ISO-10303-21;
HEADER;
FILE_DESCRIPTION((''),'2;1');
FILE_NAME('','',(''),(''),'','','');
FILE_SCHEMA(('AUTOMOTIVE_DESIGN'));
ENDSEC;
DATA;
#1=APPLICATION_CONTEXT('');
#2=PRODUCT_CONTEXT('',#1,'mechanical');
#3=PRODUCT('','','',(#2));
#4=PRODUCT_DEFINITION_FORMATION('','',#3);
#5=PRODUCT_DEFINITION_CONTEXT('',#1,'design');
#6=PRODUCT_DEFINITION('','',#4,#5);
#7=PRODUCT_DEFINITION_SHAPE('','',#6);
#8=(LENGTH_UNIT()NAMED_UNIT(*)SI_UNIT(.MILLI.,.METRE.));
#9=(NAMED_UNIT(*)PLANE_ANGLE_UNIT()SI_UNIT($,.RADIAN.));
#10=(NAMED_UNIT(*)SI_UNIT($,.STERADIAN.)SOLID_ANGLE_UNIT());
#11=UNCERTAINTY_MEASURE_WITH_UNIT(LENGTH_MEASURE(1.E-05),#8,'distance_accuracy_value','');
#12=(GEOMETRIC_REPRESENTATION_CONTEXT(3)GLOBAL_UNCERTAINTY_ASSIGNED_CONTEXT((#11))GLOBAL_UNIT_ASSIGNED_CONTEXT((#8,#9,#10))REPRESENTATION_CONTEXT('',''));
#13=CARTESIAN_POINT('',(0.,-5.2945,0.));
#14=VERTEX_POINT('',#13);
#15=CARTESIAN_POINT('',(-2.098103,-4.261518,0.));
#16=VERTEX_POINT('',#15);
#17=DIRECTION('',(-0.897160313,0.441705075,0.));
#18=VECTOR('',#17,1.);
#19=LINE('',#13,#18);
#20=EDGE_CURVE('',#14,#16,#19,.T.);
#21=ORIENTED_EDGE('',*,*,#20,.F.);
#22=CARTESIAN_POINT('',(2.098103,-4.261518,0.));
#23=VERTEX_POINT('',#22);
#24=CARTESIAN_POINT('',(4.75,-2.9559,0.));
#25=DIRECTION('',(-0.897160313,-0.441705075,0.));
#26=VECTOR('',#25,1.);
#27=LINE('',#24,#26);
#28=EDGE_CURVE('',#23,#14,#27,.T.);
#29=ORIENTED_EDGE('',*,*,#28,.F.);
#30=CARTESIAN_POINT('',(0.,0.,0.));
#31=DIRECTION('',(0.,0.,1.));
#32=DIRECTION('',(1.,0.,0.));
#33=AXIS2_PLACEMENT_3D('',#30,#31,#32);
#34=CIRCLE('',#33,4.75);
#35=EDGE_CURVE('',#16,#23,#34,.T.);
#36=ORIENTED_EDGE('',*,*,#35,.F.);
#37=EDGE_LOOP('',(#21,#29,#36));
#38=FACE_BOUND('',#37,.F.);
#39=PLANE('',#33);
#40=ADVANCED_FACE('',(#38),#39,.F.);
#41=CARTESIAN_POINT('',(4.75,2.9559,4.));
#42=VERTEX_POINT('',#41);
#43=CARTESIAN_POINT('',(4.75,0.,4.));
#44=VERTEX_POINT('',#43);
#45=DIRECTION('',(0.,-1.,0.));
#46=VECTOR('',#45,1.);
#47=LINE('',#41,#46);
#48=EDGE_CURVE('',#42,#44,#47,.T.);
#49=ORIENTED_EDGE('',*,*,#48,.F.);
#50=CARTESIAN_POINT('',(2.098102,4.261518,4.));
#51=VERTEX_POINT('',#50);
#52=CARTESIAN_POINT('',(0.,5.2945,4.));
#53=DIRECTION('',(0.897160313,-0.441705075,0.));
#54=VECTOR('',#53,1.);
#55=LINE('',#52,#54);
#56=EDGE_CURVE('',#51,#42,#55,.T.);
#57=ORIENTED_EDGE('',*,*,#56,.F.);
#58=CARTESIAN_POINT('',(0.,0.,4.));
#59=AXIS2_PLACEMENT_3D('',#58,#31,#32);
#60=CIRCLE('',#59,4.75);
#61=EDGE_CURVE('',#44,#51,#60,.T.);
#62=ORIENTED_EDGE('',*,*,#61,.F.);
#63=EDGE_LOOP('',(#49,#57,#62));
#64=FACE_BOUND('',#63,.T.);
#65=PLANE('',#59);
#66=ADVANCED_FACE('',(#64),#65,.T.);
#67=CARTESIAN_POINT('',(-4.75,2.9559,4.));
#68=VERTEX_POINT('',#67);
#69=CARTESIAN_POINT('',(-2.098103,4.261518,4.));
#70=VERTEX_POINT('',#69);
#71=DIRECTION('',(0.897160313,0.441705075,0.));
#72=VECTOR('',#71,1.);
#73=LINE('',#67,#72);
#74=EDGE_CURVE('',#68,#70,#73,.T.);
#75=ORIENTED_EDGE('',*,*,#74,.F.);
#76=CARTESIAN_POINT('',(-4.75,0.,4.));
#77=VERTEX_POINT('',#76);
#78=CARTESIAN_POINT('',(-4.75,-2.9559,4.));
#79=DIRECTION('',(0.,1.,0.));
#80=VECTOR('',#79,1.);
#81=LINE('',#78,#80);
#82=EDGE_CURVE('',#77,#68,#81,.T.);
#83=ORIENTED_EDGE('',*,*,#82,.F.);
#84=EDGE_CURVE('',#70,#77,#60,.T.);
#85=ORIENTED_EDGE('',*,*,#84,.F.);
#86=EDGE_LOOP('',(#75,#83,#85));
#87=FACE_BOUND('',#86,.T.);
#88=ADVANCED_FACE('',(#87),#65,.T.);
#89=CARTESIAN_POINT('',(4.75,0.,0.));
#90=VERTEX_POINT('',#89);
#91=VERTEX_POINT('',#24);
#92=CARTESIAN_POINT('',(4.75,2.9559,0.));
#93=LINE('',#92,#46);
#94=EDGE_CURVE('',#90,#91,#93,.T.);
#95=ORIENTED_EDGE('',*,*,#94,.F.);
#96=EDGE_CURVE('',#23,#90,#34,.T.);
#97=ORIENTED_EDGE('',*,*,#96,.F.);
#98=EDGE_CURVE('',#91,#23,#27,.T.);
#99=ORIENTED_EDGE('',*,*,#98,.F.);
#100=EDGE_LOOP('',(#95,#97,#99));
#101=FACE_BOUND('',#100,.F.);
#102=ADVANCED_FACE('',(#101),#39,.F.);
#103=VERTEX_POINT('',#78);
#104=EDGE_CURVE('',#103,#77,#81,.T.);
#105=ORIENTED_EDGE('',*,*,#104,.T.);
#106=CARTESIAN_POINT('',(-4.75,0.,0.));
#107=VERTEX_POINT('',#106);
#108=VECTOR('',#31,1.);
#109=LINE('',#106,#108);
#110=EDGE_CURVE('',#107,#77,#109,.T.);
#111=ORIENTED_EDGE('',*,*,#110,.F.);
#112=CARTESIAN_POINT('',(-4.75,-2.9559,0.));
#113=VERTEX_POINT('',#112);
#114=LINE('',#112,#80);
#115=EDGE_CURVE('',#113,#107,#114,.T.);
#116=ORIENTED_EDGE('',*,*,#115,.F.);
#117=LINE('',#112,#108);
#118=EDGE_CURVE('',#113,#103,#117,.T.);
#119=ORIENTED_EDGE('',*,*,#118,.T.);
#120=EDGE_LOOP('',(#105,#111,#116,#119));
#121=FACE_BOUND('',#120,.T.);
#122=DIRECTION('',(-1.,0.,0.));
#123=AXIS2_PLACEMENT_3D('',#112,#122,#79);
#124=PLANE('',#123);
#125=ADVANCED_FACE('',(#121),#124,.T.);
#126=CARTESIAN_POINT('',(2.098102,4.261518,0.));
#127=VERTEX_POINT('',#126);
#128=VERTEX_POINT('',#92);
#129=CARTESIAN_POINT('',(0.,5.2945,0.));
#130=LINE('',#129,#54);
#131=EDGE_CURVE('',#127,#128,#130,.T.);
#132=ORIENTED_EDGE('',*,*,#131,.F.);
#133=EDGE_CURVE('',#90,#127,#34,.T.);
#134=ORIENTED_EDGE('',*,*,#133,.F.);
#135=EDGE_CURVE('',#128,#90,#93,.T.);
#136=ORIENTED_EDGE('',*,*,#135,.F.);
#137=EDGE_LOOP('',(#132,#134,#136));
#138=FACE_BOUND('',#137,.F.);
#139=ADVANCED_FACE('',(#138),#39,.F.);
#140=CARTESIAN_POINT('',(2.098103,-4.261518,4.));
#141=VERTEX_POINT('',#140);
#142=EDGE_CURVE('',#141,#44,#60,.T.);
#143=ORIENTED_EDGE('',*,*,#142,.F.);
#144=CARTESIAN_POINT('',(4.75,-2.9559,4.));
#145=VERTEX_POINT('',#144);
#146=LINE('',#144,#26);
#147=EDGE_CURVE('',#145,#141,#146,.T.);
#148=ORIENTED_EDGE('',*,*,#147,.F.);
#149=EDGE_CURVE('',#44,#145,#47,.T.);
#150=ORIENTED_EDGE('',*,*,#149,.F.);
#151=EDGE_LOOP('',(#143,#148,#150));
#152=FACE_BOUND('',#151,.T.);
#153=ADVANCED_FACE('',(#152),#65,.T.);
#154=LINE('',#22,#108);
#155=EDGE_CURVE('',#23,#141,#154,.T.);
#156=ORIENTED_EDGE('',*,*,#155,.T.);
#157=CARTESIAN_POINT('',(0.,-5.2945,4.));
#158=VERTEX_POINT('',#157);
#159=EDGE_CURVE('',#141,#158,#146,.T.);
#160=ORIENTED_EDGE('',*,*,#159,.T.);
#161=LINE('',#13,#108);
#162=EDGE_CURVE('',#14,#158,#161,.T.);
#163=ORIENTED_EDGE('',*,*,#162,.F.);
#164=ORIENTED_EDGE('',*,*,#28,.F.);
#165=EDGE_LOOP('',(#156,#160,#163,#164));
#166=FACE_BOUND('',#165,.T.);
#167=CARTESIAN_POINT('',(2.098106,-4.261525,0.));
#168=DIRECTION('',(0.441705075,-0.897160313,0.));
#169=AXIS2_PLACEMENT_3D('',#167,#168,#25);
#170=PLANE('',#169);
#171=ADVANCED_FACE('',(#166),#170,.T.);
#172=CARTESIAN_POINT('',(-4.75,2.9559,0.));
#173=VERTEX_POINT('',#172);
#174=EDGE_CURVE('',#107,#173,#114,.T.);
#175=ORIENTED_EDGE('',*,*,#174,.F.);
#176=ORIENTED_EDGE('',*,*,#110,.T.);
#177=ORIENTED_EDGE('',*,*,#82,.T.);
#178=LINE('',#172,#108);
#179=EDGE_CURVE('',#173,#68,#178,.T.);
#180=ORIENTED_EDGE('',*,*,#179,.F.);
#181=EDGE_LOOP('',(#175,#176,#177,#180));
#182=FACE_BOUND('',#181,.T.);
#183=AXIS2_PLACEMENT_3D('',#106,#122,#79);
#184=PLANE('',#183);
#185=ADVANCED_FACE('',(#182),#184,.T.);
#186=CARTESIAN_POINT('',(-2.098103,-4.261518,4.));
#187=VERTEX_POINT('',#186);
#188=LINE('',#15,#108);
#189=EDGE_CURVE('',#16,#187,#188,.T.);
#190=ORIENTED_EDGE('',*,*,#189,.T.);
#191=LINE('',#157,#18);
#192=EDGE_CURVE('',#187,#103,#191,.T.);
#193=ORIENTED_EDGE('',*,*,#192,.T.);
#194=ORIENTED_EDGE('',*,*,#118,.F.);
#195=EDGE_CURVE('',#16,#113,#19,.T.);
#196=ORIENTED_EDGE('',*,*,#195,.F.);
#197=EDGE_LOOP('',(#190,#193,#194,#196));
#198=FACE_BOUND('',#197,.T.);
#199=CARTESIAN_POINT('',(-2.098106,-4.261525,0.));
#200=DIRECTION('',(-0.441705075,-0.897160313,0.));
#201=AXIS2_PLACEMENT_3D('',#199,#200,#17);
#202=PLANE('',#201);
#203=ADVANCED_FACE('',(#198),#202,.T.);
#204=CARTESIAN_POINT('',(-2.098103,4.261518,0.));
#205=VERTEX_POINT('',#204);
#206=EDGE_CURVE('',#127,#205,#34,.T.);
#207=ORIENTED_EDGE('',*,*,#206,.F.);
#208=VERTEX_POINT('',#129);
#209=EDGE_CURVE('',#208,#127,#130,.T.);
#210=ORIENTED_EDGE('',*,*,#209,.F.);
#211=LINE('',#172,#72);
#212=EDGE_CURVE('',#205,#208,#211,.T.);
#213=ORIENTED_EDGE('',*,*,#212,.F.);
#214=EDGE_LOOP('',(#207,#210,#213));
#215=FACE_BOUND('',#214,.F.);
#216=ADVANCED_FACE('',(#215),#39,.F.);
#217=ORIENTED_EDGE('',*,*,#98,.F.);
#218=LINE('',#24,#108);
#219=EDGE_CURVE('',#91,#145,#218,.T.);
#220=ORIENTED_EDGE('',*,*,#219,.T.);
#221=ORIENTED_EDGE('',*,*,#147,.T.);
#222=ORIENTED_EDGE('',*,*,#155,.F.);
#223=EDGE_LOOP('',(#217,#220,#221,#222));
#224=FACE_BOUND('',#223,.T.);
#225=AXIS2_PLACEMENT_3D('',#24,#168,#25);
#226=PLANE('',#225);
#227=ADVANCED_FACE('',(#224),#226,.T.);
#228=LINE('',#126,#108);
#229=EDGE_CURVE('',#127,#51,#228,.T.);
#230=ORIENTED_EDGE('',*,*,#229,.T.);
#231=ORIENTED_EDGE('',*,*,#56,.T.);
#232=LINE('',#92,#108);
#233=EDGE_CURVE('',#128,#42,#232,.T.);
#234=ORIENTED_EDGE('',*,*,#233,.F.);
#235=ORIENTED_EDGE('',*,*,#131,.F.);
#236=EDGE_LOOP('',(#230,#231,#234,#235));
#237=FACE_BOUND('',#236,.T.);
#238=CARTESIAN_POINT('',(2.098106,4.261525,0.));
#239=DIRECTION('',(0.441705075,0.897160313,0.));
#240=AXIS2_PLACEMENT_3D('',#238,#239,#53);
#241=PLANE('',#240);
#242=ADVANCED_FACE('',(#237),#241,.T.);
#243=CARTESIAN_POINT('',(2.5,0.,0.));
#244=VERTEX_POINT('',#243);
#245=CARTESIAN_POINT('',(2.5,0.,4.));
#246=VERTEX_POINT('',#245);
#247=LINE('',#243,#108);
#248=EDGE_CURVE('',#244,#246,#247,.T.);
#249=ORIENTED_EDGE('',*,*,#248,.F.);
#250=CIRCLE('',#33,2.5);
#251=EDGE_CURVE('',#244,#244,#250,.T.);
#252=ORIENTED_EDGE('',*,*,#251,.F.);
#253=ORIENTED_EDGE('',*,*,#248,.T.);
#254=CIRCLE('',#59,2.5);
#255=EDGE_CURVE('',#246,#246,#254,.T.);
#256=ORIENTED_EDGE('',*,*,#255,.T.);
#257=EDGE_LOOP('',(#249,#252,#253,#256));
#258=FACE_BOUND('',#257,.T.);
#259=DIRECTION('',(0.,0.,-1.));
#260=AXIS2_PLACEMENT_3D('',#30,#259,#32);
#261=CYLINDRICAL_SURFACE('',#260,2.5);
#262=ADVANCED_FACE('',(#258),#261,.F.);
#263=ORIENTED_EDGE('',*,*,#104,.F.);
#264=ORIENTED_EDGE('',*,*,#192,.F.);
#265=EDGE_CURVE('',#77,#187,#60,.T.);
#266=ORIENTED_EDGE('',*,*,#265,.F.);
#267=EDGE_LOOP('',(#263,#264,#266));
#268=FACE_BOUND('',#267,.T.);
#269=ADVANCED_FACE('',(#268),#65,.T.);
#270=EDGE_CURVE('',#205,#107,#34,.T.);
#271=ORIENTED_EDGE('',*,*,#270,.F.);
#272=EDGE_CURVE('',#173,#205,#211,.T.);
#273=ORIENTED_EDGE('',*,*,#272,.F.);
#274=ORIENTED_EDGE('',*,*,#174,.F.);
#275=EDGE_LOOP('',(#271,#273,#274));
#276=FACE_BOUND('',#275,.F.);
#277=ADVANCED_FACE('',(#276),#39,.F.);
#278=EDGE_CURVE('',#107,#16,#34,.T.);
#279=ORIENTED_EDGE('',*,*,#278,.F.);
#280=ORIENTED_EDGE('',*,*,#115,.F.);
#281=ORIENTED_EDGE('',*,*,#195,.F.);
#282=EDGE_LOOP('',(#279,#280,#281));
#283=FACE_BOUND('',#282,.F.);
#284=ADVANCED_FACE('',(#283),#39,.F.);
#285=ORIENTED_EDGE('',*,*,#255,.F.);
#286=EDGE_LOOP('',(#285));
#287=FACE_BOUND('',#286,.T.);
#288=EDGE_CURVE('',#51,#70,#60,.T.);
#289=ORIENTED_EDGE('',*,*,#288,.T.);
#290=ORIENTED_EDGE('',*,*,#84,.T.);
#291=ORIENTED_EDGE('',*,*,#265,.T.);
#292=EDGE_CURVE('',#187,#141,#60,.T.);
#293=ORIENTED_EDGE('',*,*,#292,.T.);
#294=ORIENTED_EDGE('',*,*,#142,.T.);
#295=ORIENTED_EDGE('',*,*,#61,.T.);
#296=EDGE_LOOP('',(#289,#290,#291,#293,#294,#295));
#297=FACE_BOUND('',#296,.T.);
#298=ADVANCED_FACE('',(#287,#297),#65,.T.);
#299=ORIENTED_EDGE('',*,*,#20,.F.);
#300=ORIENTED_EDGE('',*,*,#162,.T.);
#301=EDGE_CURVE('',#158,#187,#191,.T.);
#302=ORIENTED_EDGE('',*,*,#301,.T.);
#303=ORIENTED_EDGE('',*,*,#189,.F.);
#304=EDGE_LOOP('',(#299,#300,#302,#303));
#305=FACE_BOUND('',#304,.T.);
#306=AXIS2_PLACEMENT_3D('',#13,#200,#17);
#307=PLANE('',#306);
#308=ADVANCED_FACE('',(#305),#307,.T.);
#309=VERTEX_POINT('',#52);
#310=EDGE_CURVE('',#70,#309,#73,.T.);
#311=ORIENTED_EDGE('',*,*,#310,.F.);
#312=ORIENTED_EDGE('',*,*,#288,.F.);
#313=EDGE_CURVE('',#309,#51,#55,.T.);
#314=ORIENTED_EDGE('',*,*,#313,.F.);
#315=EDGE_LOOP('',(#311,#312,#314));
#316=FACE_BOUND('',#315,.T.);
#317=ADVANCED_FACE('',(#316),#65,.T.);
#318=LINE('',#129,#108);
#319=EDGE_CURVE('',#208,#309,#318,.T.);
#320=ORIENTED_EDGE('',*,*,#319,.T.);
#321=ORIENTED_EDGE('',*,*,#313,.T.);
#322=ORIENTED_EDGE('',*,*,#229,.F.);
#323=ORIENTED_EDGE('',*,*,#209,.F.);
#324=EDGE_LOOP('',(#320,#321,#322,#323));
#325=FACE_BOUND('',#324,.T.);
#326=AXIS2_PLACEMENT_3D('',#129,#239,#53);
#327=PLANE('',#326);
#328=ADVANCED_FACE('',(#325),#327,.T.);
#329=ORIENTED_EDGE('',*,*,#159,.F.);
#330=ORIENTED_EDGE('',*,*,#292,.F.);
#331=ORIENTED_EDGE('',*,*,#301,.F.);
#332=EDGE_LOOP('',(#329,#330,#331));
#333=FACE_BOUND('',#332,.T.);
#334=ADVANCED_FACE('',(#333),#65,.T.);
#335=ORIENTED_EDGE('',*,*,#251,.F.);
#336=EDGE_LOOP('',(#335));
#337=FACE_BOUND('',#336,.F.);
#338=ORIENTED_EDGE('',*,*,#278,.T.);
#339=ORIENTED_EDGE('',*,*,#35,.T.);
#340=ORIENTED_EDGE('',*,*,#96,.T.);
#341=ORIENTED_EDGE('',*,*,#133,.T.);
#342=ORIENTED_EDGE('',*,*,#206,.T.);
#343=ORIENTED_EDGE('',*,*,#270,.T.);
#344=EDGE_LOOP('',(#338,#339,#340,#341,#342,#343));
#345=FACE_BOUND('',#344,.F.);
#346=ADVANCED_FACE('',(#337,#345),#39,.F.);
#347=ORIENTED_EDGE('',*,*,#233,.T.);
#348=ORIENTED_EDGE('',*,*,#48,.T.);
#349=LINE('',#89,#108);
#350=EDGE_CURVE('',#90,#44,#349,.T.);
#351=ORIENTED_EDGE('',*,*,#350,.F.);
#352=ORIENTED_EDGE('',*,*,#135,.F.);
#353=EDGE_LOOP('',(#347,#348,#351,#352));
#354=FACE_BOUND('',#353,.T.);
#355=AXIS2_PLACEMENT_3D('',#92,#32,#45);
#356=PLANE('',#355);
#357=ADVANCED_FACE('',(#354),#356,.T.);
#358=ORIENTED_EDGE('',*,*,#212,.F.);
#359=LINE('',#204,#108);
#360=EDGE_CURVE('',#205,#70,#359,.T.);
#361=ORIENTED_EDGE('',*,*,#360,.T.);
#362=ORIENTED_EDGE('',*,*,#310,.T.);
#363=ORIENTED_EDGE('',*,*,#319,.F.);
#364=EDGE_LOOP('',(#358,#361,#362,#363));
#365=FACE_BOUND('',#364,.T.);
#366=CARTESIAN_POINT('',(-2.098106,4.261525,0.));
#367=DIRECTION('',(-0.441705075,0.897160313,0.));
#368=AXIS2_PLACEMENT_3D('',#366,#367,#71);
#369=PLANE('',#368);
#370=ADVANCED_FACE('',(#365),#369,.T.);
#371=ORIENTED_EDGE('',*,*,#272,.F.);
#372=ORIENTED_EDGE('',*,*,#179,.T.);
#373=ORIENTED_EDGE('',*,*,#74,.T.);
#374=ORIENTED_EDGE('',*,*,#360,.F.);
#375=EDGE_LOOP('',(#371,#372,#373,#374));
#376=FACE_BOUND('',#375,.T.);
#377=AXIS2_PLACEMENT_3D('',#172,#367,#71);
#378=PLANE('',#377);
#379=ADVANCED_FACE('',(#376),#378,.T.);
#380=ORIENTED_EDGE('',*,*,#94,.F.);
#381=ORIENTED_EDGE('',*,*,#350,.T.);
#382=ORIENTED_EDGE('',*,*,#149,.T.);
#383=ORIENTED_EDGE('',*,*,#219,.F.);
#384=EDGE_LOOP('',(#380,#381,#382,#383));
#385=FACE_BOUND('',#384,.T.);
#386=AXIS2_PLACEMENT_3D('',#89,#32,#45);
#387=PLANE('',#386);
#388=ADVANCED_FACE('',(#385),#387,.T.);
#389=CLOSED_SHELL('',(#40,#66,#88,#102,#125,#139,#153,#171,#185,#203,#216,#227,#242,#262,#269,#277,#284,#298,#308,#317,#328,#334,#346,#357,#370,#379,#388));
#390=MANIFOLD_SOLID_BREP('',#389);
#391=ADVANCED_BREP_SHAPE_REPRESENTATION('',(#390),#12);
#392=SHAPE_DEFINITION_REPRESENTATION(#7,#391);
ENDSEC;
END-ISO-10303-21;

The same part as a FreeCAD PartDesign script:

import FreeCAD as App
import Part
import Sketcher
from FreeCAD import Vector


def add_polygon(sketch, points):
    """Adds a closed chain of lines whose ends are joined by coincident constraints."""
    first, n = sketch.GeometryCount, len(points)
    for a, b in zip(points, points[1:] + points[:1]):
        sketch.addGeometry(Part.LineSegment(App.Vector(*a, 0), App.Vector(*b, 0)), False)
    for i in range(n):
        sketch.addConstraint(Sketcher.Constraint("Coincident", first + i, 2, first + (i + 1) % n, 1))

doc = App.newDocument("Part")
body = doc.addObject("PartDesign::Body", "Body")

# Sketch on XY plane
sketch1 = body.newObject("Sketcher::SketchObject", "Sketch")
sketch1.AttachmentSupport = (doc.getObject("XY_Plane"), [""])
sketch1.MapMode = "FlatFace"
add_polygon(sketch1, [(-4.8, 3), (-4.8, -3), (0, -5.3), (4.8, -3), (4.8, 3), (0, 5.3)])  # lines 0-5
sketch1.addGeometry(Part.Circle(Vector(0, 0, 0), Vector(0, 0, 1), 2.5), False)  # 6
sketch1.addConstraint([
    Sketcher.Constraint("Vertical", 0),
    Sketcher.Constraint("Vertical", 3),
    Sketcher.Constraint("Coincident", 6, 3, -1, 1),
    Sketcher.Constraint("Symmetric", 0, 2, 3, 2, -1, 1),
    Sketcher.Constraint("Symmetric", 1, 2, 4, 2, -1, 1),
    Sketcher.Constraint("PointOnObject", 1, 2, -2),
    Sketcher.Constraint("Parallel", 2, 5),
    Sketcher.Constraint("Horizontal", 0, 2, 2, 2),
    Sketcher.Constraint("Diameter", 6, 5.0),
    Sketcher.Constraint("DistanceX", 0, 2, 2, 2, 9.5),
    Sketcher.Constraint("DistanceY", 0, 2, 0, 1, 5.9118),
    Sketcher.Constraint("DistanceY", 1, 2, 4, 2, 10.589),
])
pad1 = body.newObject("PartDesign::Pad", "Pad")
pad1.Profile = sketch1
pad1.Length = 4

doc.recompute()
